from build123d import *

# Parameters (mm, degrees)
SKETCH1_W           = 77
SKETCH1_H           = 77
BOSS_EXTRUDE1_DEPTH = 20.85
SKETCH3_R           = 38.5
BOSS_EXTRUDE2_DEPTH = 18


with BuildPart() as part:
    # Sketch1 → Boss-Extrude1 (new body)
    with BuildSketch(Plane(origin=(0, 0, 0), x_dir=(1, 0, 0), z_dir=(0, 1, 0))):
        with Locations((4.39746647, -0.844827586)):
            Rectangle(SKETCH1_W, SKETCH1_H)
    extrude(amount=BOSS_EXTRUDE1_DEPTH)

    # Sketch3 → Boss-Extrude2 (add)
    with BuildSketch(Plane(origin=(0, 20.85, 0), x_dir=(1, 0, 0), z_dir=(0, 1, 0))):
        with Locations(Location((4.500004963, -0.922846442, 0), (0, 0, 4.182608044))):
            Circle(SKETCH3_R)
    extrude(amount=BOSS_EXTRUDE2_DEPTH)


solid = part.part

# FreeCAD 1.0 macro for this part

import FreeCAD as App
import Part
import Sketcher


def add_polygon(sketch, points):
    """Adds a closed chain of lines whose ends are joined by coincident constraints."""
    first, n = sketch.GeometryCount, len(points)
    for a, b in zip(points, points[1:] + points[:1]):
        sketch.addGeometry(Part.LineSegment(App.Vector(*a, 0), App.Vector(*b, 0)), False)
    for i in range(n):
        sketch.addConstraint(Sketcher.Constraint("Coincident", first + i, 2, first + (i + 1) % n, 1))

doc = App.newDocument("Part")
body = doc.addObject("PartDesign::Body", "Body")

sketch1 = body.newObject("Sketcher::SketchObject", "Sketch")
sketch1.AttachmentSupport = (doc.getObject("XZ_Plane"), [""])
sketch1.MapMode = "FlatFace"
add_polygon(sketch1, [(-34, -38), (-34, 39), (43, 39), (43, -38)])
sketch1.addConstraint([
    Sketcher.Constraint("Vertical", 0),
    Sketcher.Constraint("Horizontal", 1),
    Sketcher.Constraint("Vertical", 2),
    Sketcher.Constraint("Horizontal", 3),
    Sketcher.Constraint("Equal", 3, 0),
    Sketcher.Constraint("DistanceX", 1, 1, 1, 2, 77.0),
    Sketcher.Constraint("DistanceX", 0, 2, -1, 1, 34.102534),
    Sketcher.Constraint("DistanceY", -1, 1, 0, 2, 39.344828),
])
pad1 = body.newObject("PartDesign::Pad", "Pad")
pad1.Profile = sketch1
pad1.Length = 20.85
pad1.Reversed = True

sketch2 = body.newObject("Sketcher::SketchObject", "Sketch001")
sketch2.AttachmentSupport = (doc.getObject("XZ_Plane"), [""])
sketch2.MapMode = "FlatFace"
sketch2.AttachmentOffset = App.Placement(App.Vector(0, 0, -20.85), App.Rotation())
sketch2.addGeometry(Part.Circle(App.Vector(5, 1, 0), App.Vector(0, 0, 1), 38), False)
sketch2.addConstraint([
    Sketcher.Constraint("Diameter", 0, 77.0),
    Sketcher.Constraint("DistanceX", -1, 1, 0, 3, 4.500005),
    Sketcher.Constraint("DistanceY", -1, 1, 0, 3, 0.922846),
])
pad2 = body.newObject("PartDesign::Pad", "Pad001")
pad2.Profile = sketch2
pad2.Length = 18
pad2.Reversed = True

doc.recompute()
